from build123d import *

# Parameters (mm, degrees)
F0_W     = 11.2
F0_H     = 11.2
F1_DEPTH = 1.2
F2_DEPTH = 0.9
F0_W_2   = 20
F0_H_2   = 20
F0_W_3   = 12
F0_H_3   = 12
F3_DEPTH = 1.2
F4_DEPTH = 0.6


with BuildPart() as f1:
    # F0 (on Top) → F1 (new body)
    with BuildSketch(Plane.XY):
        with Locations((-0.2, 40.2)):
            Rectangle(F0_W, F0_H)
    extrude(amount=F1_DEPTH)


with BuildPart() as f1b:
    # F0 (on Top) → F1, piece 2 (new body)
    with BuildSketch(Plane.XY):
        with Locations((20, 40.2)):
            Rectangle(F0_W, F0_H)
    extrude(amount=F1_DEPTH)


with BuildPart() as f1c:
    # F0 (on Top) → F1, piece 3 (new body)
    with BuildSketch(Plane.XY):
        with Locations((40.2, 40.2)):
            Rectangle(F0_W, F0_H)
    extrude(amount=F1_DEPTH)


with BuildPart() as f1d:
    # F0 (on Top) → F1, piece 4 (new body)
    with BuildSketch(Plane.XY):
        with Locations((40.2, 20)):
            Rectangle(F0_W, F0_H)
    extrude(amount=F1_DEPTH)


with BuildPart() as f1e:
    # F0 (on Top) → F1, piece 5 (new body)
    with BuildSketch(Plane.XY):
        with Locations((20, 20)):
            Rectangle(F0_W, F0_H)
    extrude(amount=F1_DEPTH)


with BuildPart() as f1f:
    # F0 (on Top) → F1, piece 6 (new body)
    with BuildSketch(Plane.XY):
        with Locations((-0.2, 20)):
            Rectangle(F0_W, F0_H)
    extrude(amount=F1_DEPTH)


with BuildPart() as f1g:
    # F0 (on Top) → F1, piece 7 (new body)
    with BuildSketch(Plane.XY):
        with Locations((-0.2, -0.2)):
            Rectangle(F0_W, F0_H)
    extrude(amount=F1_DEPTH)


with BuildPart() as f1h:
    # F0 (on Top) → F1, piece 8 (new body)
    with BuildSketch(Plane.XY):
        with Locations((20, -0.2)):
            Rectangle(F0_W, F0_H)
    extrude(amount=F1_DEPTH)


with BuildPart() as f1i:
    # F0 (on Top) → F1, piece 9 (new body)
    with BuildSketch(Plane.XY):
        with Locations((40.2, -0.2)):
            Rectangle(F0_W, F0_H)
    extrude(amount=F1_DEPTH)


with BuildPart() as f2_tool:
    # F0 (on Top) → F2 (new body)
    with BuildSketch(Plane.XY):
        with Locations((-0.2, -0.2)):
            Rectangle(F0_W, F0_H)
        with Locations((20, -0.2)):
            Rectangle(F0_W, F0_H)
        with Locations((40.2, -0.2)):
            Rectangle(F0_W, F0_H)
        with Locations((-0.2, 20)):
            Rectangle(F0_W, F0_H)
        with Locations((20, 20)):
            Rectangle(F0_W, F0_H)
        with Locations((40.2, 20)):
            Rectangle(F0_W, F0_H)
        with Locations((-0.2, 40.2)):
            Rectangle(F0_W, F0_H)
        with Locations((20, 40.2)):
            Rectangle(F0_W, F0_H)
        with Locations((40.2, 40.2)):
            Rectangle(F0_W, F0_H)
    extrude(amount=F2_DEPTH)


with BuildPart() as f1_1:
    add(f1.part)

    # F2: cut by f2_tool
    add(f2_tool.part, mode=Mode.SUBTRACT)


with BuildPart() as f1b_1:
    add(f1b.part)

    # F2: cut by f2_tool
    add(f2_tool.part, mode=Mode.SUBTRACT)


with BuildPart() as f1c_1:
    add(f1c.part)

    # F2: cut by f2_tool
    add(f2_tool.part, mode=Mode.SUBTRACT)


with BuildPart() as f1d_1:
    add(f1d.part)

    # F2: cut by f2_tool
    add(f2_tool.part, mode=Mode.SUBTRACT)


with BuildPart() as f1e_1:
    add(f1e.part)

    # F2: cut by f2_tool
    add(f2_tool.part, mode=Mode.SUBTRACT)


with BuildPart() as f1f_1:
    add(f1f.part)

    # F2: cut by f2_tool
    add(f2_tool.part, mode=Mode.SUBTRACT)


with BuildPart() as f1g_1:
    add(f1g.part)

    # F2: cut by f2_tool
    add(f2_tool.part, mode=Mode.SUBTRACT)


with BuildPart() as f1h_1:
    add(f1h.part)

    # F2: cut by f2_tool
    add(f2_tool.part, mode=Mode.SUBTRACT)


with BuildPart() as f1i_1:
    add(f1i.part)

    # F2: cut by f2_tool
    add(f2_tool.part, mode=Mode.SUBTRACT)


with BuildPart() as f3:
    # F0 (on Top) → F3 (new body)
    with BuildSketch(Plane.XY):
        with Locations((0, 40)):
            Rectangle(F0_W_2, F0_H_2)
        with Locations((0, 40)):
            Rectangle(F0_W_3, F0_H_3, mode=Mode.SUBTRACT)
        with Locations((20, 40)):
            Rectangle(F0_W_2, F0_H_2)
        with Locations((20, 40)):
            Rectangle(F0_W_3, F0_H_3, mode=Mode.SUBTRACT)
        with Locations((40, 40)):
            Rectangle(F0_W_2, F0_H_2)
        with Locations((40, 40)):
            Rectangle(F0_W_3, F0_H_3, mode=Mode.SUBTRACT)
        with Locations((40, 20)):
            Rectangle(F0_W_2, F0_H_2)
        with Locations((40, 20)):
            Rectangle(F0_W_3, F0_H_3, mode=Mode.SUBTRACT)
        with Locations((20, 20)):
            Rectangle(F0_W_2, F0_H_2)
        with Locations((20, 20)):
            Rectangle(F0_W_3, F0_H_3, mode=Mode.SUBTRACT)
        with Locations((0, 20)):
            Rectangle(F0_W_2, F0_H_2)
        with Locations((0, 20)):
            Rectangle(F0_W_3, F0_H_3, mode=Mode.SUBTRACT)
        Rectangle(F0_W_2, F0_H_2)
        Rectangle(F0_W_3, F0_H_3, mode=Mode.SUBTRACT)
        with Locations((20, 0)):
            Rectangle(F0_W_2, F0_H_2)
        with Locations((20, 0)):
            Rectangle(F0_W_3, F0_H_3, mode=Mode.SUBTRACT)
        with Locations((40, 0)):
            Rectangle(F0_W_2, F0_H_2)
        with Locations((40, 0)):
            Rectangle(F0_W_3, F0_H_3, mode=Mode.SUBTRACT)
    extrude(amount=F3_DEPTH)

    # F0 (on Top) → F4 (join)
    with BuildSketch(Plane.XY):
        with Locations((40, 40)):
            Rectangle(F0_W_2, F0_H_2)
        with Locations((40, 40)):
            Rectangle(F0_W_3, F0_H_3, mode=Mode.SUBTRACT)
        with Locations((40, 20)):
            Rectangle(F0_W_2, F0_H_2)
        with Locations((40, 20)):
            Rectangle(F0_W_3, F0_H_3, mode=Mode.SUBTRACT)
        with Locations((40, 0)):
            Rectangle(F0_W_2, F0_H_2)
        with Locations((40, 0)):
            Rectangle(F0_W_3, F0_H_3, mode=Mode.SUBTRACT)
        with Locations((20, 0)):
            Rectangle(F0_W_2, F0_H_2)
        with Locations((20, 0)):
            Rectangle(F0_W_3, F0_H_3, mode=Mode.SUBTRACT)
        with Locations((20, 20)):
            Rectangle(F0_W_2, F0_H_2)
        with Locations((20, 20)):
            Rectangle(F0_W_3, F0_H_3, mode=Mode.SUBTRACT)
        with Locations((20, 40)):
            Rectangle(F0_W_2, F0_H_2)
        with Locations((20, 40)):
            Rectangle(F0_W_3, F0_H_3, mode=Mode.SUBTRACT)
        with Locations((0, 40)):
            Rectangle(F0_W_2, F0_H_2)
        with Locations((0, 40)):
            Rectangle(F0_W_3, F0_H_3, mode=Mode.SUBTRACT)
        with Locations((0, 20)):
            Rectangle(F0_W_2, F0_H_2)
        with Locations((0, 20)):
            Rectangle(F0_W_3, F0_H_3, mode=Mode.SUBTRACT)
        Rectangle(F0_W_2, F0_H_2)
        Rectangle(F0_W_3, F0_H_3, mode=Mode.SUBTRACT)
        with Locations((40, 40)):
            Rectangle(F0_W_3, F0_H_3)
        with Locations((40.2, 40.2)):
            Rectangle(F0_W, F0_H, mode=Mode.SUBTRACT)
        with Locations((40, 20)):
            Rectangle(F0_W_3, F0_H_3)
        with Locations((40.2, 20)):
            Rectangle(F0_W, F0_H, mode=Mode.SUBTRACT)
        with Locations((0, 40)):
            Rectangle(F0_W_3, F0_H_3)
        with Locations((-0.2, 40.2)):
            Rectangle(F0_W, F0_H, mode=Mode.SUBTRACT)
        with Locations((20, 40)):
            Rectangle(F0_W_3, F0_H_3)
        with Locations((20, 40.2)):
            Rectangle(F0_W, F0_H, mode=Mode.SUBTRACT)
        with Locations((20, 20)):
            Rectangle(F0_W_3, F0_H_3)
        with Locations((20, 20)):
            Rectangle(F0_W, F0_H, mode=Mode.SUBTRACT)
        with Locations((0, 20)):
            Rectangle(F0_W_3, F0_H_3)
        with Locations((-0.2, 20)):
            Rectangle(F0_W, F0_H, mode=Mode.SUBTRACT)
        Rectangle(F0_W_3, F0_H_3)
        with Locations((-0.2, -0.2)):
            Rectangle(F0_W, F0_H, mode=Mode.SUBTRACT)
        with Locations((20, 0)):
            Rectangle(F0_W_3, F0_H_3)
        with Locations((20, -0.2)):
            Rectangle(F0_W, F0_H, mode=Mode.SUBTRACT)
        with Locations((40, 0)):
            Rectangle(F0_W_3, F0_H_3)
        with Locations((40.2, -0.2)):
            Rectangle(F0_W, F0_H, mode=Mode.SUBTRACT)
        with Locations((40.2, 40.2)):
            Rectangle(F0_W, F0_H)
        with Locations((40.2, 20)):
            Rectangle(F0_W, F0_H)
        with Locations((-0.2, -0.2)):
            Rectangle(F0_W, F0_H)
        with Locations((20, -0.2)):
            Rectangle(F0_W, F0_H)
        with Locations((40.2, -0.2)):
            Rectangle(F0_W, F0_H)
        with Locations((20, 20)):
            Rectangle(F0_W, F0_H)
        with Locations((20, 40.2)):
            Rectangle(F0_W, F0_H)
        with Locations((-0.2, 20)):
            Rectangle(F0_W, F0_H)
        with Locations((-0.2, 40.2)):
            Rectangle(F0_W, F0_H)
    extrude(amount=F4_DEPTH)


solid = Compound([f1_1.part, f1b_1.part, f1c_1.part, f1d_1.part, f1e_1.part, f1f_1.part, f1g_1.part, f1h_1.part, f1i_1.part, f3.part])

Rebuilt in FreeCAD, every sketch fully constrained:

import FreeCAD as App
import Part
import Sketcher

doc = App.newDocument("Part")
params = doc.addObject("Spreadsheet::Sheet", "Params")
for row, (alias, value) in enumerate([
    ("sketch1_width", "11.2 mm"),
    ("pad1_length", "1.2 mm"),
    ("sketch2_width", "11.2 mm"),
    ("pad2_length", "1.2 mm"),
    ("sketch3_width", "11.2 mm"),
    ("pad3_length", "1.2 mm"),
    ("sketch4_width", "11.2 mm"),
    ("pad4_length", "1.2 mm"),
    ("sketch5_width", "11.2 mm"),
    ("pad5_length", "1.2 mm"),
    ("sketch6_width", "11.2 mm"),
    ("pad6_length", "1.2 mm"),
    ("sketch7_width", "11.2 mm"),
    ("pad7_length", "1.2 mm"),
    ("sketch8_width", "11.2 mm"),
    ("pad8_length", "1.2 mm"),
    ("sketch9_width", "11.2 mm"),
    ("pad9_length", "1.2 mm"),
    ("sketch10_width", "11.2 mm"),
    ("pad10_length", "0.9 mm"),
    ("sketch11_width", "60 mm"),
    ("sketch11_width2", "12 mm"),
    ("pad11_length", "1.2 mm"),
    ("sketch12_width", "60 mm"),
    ("pad12_length", "0.6 mm"),
], start=1):
    params.set(f"A{row}", alias)
    params.set(f"B{row}", "=" + value)
    params.setAlias(f"B{row}", alias)

body = doc.addObject("PartDesign::Body", "Body")

# Sketch on XY plane
sketch1 = body.newObject("Sketcher::SketchObject", "Sketch")
sketch1.AttachmentSupport = (doc.getObject("XY_Plane"), [""])
sketch1.MapMode = "FlatFace"
sketch1.addGeometry(Part.LineSegment(App.Vector(-6, 46, 0), App.Vector(-6, 35, 0)), False)
sketch1.addGeometry(Part.LineSegment(App.Vector(-6, 35, 0), App.Vector(5, 35, 0)), False)
sketch1.addGeometry(Part.LineSegment(App.Vector(5, 35, 0), App.Vector(5, 46, 0)), False)
sketch1.addGeometry(Part.LineSegment(App.Vector(5, 46, 0), App.Vector(-6, 46, 0)), False)
sketch1.addConstraint(Sketcher.Constraint("Coincident", 0, 2, 1, 1))
sketch1.addConstraint(Sketcher.Constraint("Coincident", 1, 2, 2, 1))
sketch1.addConstraint(Sketcher.Constraint("Coincident", 2, 2, 3, 1))
sketch1.addConstraint(Sketcher.Constraint("Coincident", 3, 2, 0, 1))
sketch1.addConstraint(Sketcher.Constraint("Vertical", 0))
sketch1.addConstraint(Sketcher.Constraint("Horizontal", 1))
sketch1.addConstraint(Sketcher.Constraint("Vertical", 2))
sketch1.addConstraint(Sketcher.Constraint("Horizontal", 3))
sketch1.addConstraint(Sketcher.Constraint("Equal", 3, 0))
sketch1.addConstraint(Sketcher.Constraint("DistanceX", 1, 1, 1, 2, 11.2))
sketch1.addConstraint(Sketcher.Constraint("DistanceX", 0, 2, -1, 1, 5.8))
sketch1.addConstraint(Sketcher.Constraint("DistanceY", -1, 1, 0, 2, 34.6))
sketch1.setExpression("Constraints[9]", "Params.sketch1_width")
pad1 = body.newObject("PartDesign::Pad", "Pad")
pad1.Profile = sketch1
pad1.setExpression("Length", "Params.pad1_length")
body2 = doc.addObject("PartDesign::Body", "Body001")

# Sketch on XY plane
sketch2 = body2.newObject("Sketcher::SketchObject", "Sketch001")
sketch2.AttachmentSupport = (doc.getObject("XY_Plane001"), [""])
sketch2.MapMode = "FlatFace"
sketch2.addGeometry(Part.LineSegment(App.Vector(14, 46, 0), App.Vector(14, 35, 0)), False)
sketch2.addGeometry(Part.LineSegment(App.Vector(14, 35, 0), App.Vector(26, 35, 0)), False)
sketch2.addGeometry(Part.LineSegment(App.Vector(26, 35, 0), App.Vector(26, 46, 0)), False)
sketch2.addGeometry(Part.LineSegment(App.Vector(26, 46, 0), App.Vector(14, 46, 0)), False)
sketch2.addConstraint(Sketcher.Constraint("Coincident", 0, 2, 1, 1))
sketch2.addConstraint(Sketcher.Constraint("Coincident", 1, 2, 2, 1))
sketch2.addConstraint(Sketcher.Constraint("Coincident", 2, 2, 3, 1))
sketch2.addConstraint(Sketcher.Constraint("Coincident", 3, 2, 0, 1))
sketch2.addConstraint(Sketcher.Constraint("Vertical", 0))
sketch2.addConstraint(Sketcher.Constraint("Horizontal", 1))
sketch2.addConstraint(Sketcher.Constraint("Vertical", 2))
sketch2.addConstraint(Sketcher.Constraint("Horizontal", 3))
sketch2.addConstraint(Sketcher.Constraint("Equal", 3, 0))
sketch2.addConstraint(Sketcher.Constraint("DistanceX", 1, 1, 1, 2, 11.2))
sketch2.addConstraint(Sketcher.Constraint("DistanceX", -1, 1, 0, 2, 14.4))
sketch2.addConstraint(Sketcher.Constraint("DistanceY", -1, 1, 0, 2, 34.6))
sketch2.setExpression("Constraints[9]", "Params.sketch2_width")
pad2 = body2.newObject("PartDesign::Pad", "Pad001")
pad2.Profile = sketch2
pad2.setExpression("Length", "Params.pad2_length")
body3 = doc.addObject("PartDesign::Body", "Body002")

# Sketch on XY plane
sketch3 = body3.newObject("Sketcher::SketchObject", "Sketch002")
sketch3.AttachmentSupport = (doc.getObject("XY_Plane002"), [""])
sketch3.MapMode = "FlatFace"
sketch3.addGeometry(Part.LineSegment(App.Vector(35, 46, 0), App.Vector(35, 35, 0)), False)
sketch3.addGeometry(Part.LineSegment(App.Vector(35, 35, 0), App.Vector(46, 35, 0)), False)
sketch3.addGeometry(Part.LineSegment(App.Vector(46, 35, 0), App.Vector(46, 46, 0)), False)
sketch3.addGeometry(Part.LineSegment(App.Vector(46, 46, 0), App.Vector(35, 46, 0)), False)
sketch3.addConstraint(Sketcher.Constraint("Coincident", 0, 2, 1, 1))
sketch3.addConstraint(Sketcher.Constraint("Coincident", 1, 2, 2, 1))
sketch3.addConstraint(Sketcher.Constraint("Coincident", 2, 2, 3, 1))
sketch3.addConstraint(Sketcher.Constraint("Coincident", 3, 2, 0, 1))
sketch3.addConstraint(Sketcher.Constraint("Vertical", 0))
sketch3.addConstraint(Sketcher.Constraint("Horizontal", 1))
sketch3.addConstraint(Sketcher.Constraint("Vertical", 2))
sketch3.addConstraint(Sketcher.Constraint("Horizontal", 3))
sketch3.addConstraint(Sketcher.Constraint("Equal", 3, 0))
sketch3.addConstraint(Sketcher.Constraint("DistanceX", 1, 1, 1, 2, 11.2))
sketch3.addConstraint(Sketcher.Constraint("DistanceX", -1, 1, 0, 2, 34.6))
sketch3.addConstraint(Sketcher.Constraint("DistanceY", -1, 1, 0, 2, 34.6))
sketch3.setExpression("Constraints[9]", "Params.sketch3_width")
pad3 = body3.newObject("PartDesign::Pad", "Pad002")
pad3.Profile = sketch3
pad3.setExpression("Length", "Params.pad3_length")
body4 = doc.addObject("PartDesign::Body", "Body003")

# Sketch on XY plane
sketch4 = body4.newObject("Sketcher::SketchObject", "Sketch003")
sketch4.AttachmentSupport = (doc.getObject("XY_Plane003"), [""])
sketch4.MapMode = "FlatFace"
sketch4.addGeometry(Part.LineSegment(App.Vector(35, 26, 0), App.Vector(35, 14, 0)), False)
sketch4.addGeometry(Part.LineSegment(App.Vector(35, 14, 0), App.Vector(46, 14, 0)), False)
sketch4.addGeometry(Part.LineSegment(App.Vector(46, 14, 0), App.Vector(46, 26, 0)), False)
sketch4.addGeometry(Part.LineSegment(App.Vector(46, 26, 0), App.Vector(35, 26, 0)), False)
sketch4.addConstraint(Sketcher.Constraint("Coincident", 0, 2, 1, 1))
sketch4.addConstraint(Sketcher.Constraint("Coincident", 1, 2, 2, 1))
sketch4.addConstraint(Sketcher.Constraint("Coincident", 2, 2, 3, 1))
sketch4.addConstraint(Sketcher.Constraint("Coincident", 3, 2, 0, 1))
sketch4.addConstraint(Sketcher.Constraint("Vertical", 0))
sketch4.addConstraint(Sketcher.Constraint("Horizontal", 1))
sketch4.addConstraint(Sketcher.Constraint("Vertical", 2))
sketch4.addConstraint(Sketcher.Constraint("Horizontal", 3))
sketch4.addConstraint(Sketcher.Constraint("Equal", 3, 0))
sketch4.addConstraint(Sketcher.Constraint("DistanceX", 1, 1, 1, 2, 11.2))
sketch4.addConstraint(Sketcher.Constraint("DistanceX", -1, 1, 0, 2, 34.6))
sketch4.addConstraint(Sketcher.Constraint("DistanceY", -1, 1, 0, 2, 14.4))
sketch4.setExpression("Constraints[9]", "Params.sketch4_width")
pad4 = body4.newObject("PartDesign::Pad", "Pad003")
pad4.Profile = sketch4
pad4.setExpression("Length", "Params.pad4_length")
body5 = doc.addObject("PartDesign::Body", "Body004")

# Sketch on XY plane
sketch5 = body5.newObject("Sketcher::SketchObject", "Sketch004")
sketch5.AttachmentSupport = (doc.getObject("XY_Plane004"), [""])
sketch5.MapMode = "FlatFace"
sketch5.addGeometry(Part.LineSegment(App.Vector(14, 26, 0), App.Vector(14, 14, 0)), False)
sketch5.addGeometry(Part.LineSegment(App.Vector(14, 14, 0), App.Vector(26, 14, 0)), False)
sketch5.addGeometry(Part.LineSegment(App.Vector(26, 14, 0), App.Vector(26, 26, 0)), False)
sketch5.addGeometry(Part.LineSegment(App.Vector(26, 26, 0), App.Vector(14, 26, 0)), False)
sketch5.addConstraint(Sketcher.Constraint("Coincident", 0, 2, 1, 1))
sketch5.addConstraint(Sketcher.Constraint("Coincident", 1, 2, 2, 1))
sketch5.addConstraint(Sketcher.Constraint("Coincident", 2, 2, 3, 1))
sketch5.addConstraint(Sketcher.Constraint("Coincident", 3, 2, 0, 1))
sketch5.addConstraint(Sketcher.Constraint("Vertical", 0))
sketch5.addConstraint(Sketcher.Constraint("Horizontal", 1))
sketch5.addConstraint(Sketcher.Constraint("Vertical", 2))
sketch5.addConstraint(Sketcher.Constraint("Horizontal", 3))
sketch5.addConstraint(Sketcher.Constraint("Equal", 3, 0))
sketch5.addConstraint(Sketcher.Constraint("DistanceX", 1, 1, 1, 2, 11.2))
sketch5.addConstraint(Sketcher.Constraint("DistanceX", -1, 1, 0, 2, 14.4))
sketch5.addConstraint(Sketcher.Constraint("DistanceY", -1, 1, 0, 2, 14.4))
sketch5.setExpression("Constraints[9]", "Params.sketch5_width")
pad5 = body5.newObject("PartDesign::Pad", "Pad004")
pad5.Profile = sketch5
pad5.setExpression("Length", "Params.pad5_length")
body6 = doc.addObject("PartDesign::Body", "Body005")

# Sketch on XY plane
sketch6 = body6.newObject("Sketcher::SketchObject", "Sketch005")
sketch6.AttachmentSupport = (doc.getObject("XY_Plane005"), [""])
sketch6.MapMode = "FlatFace"
sketch6.addGeometry(Part.LineSegment(App.Vector(-6, 26, 0), App.Vector(-6, 14, 0)), False)
sketch6.addGeometry(Part.LineSegment(App.Vector(-6, 14, 0), App.Vector(5, 14, 0)), False)
sketch6.addGeometry(Part.LineSegment(App.Vector(5, 14, 0), App.Vector(5, 26, 0)), False)
sketch6.addGeometry(Part.LineSegment(App.Vector(5, 26, 0), App.Vector(-6, 26, 0)), False)
sketch6.addConstraint(Sketcher.Constraint("Coincident", 0, 2, 1, 1))
sketch6.addConstraint(Sketcher.Constraint("Coincident", 1, 2, 2, 1))
sketch6.addConstraint(Sketcher.Constraint("Coincident", 2, 2, 3, 1))
sketch6.addConstraint(Sketcher.Constraint("Coincident", 3, 2, 0, 1))
sketch6.addConstraint(Sketcher.Constraint("Vertical", 0))
sketch6.addConstraint(Sketcher.Constraint("Horizontal", 1))
sketch6.addConstraint(Sketcher.Constraint("Vertical", 2))
sketch6.addConstraint(Sketcher.Constraint("Horizontal", 3))
sketch6.addConstraint(Sketcher.Constraint("Equal", 3, 0))
sketch6.addConstraint(Sketcher.Constraint("DistanceX", 1, 1, 1, 2, 11.2))
sketch6.addConstraint(Sketcher.Constraint("DistanceX", 0, 2, -1, 1, 5.8))
sketch6.addConstraint(Sketcher.Constraint("DistanceY", -1, 1, 0, 2, 14.4))
sketch6.setExpression("Constraints[9]", "Params.sketch6_width")
pad6 = body6.newObject("PartDesign::Pad", "Pad005")
pad6.Profile = sketch6
pad6.setExpression("Length", "Params.pad6_length")
body7 = doc.addObject("PartDesign::Body", "Body006")

# Sketch on XY plane
sketch7 = body7.newObject("Sketcher::SketchObject", "Sketch006")
sketch7.AttachmentSupport = (doc.getObject("XY_Plane006"), [""])
sketch7.MapMode = "FlatFace"
sketch7.addGeometry(Part.LineSegment(App.Vector(-6, 5, 0), App.Vector(-6, -6, 0)), False)
sketch7.addGeometry(Part.LineSegment(App.Vector(-6, -6, 0), App.Vector(5, -6, 0)), False)
sketch7.addGeometry(Part.LineSegment(App.Vector(5, -6, 0), App.Vector(5, 5, 0)), False)
sketch7.addGeometry(Part.LineSegment(App.Vector(5, 5, 0), App.Vector(-6, 5, 0)), False)
sketch7.addConstraint(Sketcher.Constraint("Coincident", 0, 2, 1, 1))
sketch7.addConstraint(Sketcher.Constraint("Coincident", 1, 2, 2, 1))
sketch7.addConstraint(Sketcher.Constraint("Coincident", 2, 2, 3, 1))
sketch7.addConstraint(Sketcher.Constraint("Coincident", 3, 2, 0, 1))
sketch7.addConstraint(Sketcher.Constraint("Vertical", 0))
sketch7.addConstraint(Sketcher.Constraint("Horizontal", 1))
sketch7.addConstraint(Sketcher.Constraint("Vertical", 2))
sketch7.addConstraint(Sketcher.Constraint("Horizontal", 3))
sketch7.addConstraint(Sketcher.Constraint("Equal", 3, 0))
sketch7.addConstraint(Sketcher.Constraint("DistanceX", 1, 1, 1, 2, 11.2))
sketch7.addConstraint(Sketcher.Constraint("DistanceX", 0, 2, -1, 1, 5.8))
sketch7.addConstraint(Sketcher.Constraint("DistanceY", 0, 2, -1, 1, 5.8))
sketch7.setExpression("Constraints[9]", "Params.sketch7_width")
pad7 = body7.newObject("PartDesign::Pad", "Pad006")
pad7.Profile = sketch7
pad7.setExpression("Length", "Params.pad7_length")
body8 = doc.addObject("PartDesign::Body", "Body007")

# Sketch on XY plane
sketch8 = body8.newObject("Sketcher::SketchObject", "Sketch007")
sketch8.AttachmentSupport = (doc.getObject("XY_Plane007"), [""])
sketch8.MapMode = "FlatFace"
sketch8.addGeometry(Part.LineSegment(App.Vector(14, 5, 0), App.Vector(14, -6, 0)), False)
sketch8.addGeometry(Part.LineSegment(App.Vector(14, -6, 0), App.Vector(26, -6, 0)), False)
sketch8.addGeometry(Part.LineSegment(App.Vector(26, -6, 0), App.Vector(26, 5, 0)), False)
sketch8.addGeometry(Part.LineSegment(App.Vector(26, 5, 0), App.Vector(14, 5, 0)), False)
sketch8.addConstraint(Sketcher.Constraint("Coincident", 0, 2, 1, 1))
sketch8.addConstraint(Sketcher.Constraint("Coincident", 1, 2, 2, 1))
sketch8.addConstraint(Sketcher.Constraint("Coincident", 2, 2, 3, 1))
sketch8.addConstraint(Sketcher.Constraint("Coincident", 3, 2, 0, 1))
sketch8.addConstraint(Sketcher.Constraint("Vertical", 0))
sketch8.addConstraint(Sketcher.Constraint("Horizontal", 1))
sketch8.addConstraint(Sketcher.Constraint("Vertical", 2))
sketch8.addConstraint(Sketcher.Constraint("Horizontal", 3))
sketch8.addConstraint(Sketcher.Constraint("Equal", 3, 0))
sketch8.addConstraint(Sketcher.Constraint("DistanceX", 1, 1, 1, 2, 11.2))
sketch8.addConstraint(Sketcher.Constraint("DistanceX", -1, 1, 0, 2, 14.4))
sketch8.addConstraint(Sketcher.Constraint("DistanceY", 0, 2, -1, 1, 5.8))
sketch8.setExpression("Constraints[9]", "Params.sketch8_width")
pad8 = body8.newObject("PartDesign::Pad", "Pad007")
pad8.Profile = sketch8
pad8.setExpression("Length", "Params.pad8_length")
body9 = doc.addObject("PartDesign::Body", "Body008")

# Sketch on XY plane
sketch9 = body9.newObject("Sketcher::SketchObject", "Sketch008")
sketch9.AttachmentSupport = (doc.getObject("XY_Plane008"), [""])
sketch9.MapMode = "FlatFace"
sketch9.addGeometry(Part.LineSegment(App.Vector(35, 5, 0), App.Vector(35, -6, 0)), False)
sketch9.addGeometry(Part.LineSegment(App.Vector(35, -6, 0), App.Vector(46, -6, 0)), False)
sketch9.addGeometry(Part.LineSegment(App.Vector(46, -6, 0), App.Vector(46, 5, 0)), False)
sketch9.addGeometry(Part.LineSegment(App.Vector(46, 5, 0), App.Vector(35, 5, 0)), False)
sketch9.addConstraint(Sketcher.Constraint("Coincident", 0, 2, 1, 1))
sketch9.addConstraint(Sketcher.Constraint("Coincident", 1, 2, 2, 1))
sketch9.addConstraint(Sketcher.Constraint("Coincident", 2, 2, 3, 1))
sketch9.addConstraint(Sketcher.Constraint("Coincident", 3, 2, 0, 1))
sketch9.addConstraint(Sketcher.Constraint("Vertical", 0))
sketch9.addConstraint(Sketcher.Constraint("Horizontal", 1))
sketch9.addConstraint(Sketcher.Constraint("Vertical", 2))
sketch9.addConstraint(Sketcher.Constraint("Horizontal", 3))
sketch9.addConstraint(Sketcher.Constraint("Equal", 3, 0))
sketch9.addConstraint(Sketcher.Constraint("DistanceX", 1, 1, 1, 2, 11.2))
sketch9.addConstraint(Sketcher.Constraint("DistanceX", -1, 1, 0, 2, 34.6))
sketch9.addConstraint(Sketcher.Constraint("DistanceY", 0, 2, -1, 1, 5.8))
sketch9.setExpression("Constraints[9]", "Params.sketch9_width")
pad9 = body9.newObject("PartDesign::Pad", "Pad008")
pad9.Profile = sketch9
pad9.setExpression("Length", "Params.pad9_length")
body10 = doc.addObject("PartDesign::Body", "Body009")
body10.AllowCompound = True

# Sketch on XY plane
sketch10 = body10.newObject("Sketcher::SketchObject", "Sketch009")
sketch10.AttachmentSupport = (doc.getObject("XY_Plane009"), [""])
sketch10.MapMode = "FlatFace"
sketch10.addGeometry(Part.LineSegment(App.Vector(-6, 5, 0), App.Vector(-6, -6, 0)), False)
sketch10.addGeometry(Part.LineSegment(App.Vector(-6, -6, 0), App.Vector(5, -6, 0)), False)
sketch10.addGeometry(Part.LineSegment(App.Vector(5, -6, 0), App.Vector(5, 5, 0)), False)
sketch10.addGeometry(Part.LineSegment(App.Vector(5, 5, 0), App.Vector(-6, 5, 0)), False)
sketch10.addGeometry(Part.LineSegment(App.Vector(14, 5, 0), App.Vector(14, -6, 0)), False)
sketch10.addGeometry(Part.LineSegment(App.Vector(14, -6, 0), App.Vector(26, -6, 0)), False)
sketch10.addGeometry(Part.LineSegment(App.Vector(26, -6, 0), App.Vector(26, 5, 0)), False)
sketch10.addGeometry(Part.LineSegment(App.Vector(26, 5, 0), App.Vector(14, 5, 0)), False)
sketch10.addGeometry(Part.LineSegment(App.Vector(35, 5, 0), App.Vector(35, -6, 0)), False)
sketch10.addGeometry(Part.LineSegment(App.Vector(35, -6, 0), App.Vector(46, -6, 0)), False)
sketch10.addGeometry(Part.LineSegment(App.Vector(46, -6, 0), App.Vector(46, 5, 0)), False)
sketch10.addGeometry(Part.LineSegment(App.Vector(46, 5, 0), App.Vector(35, 5, 0)), False)
sketch10.addGeometry(Part.LineSegment(App.Vector(-6, 26, 0), App.Vector(-6, 14, 0)), False)
sketch10.addGeometry(Part.LineSegment(App.Vector(-6, 14, 0), App.Vector(5, 14, 0)), False)
sketch10.addGeometry(Part.LineSegment(App.Vector(5, 14, 0), App.Vector(5, 26, 0)), False)
sketch10.addGeometry(Part.LineSegment(App.Vector(5, 26, 0), App.Vector(-6, 26, 0)), False)
sketch10.addGeometry(Part.LineSegment(App.Vector(14, 26, 0), App.Vector(14, 14, 0)), False)
sketch10.addGeometry(Part.LineSegment(App.Vector(14, 14, 0), App.Vector(26, 14, 0)), False)
sketch10.addGeometry(Part.LineSegment(App.Vector(26, 14, 0), App.Vector(26, 26, 0)), False)
sketch10.addGeometry(Part.LineSegment(App.Vector(26, 26, 0), App.Vector(14, 26, 0)), False)
sketch10.addGeometry(Part.LineSegment(App.Vector(35, 26, 0), App.Vector(35, 14, 0)), False)
sketch10.addGeometry(Part.LineSegment(App.Vector(35, 14, 0), App.Vector(46, 14, 0)), False)
sketch10.addGeometry(Part.LineSegment(App.Vector(46, 14, 0), App.Vector(46, 26, 0)), False)
sketch10.addGeometry(Part.LineSegment(App.Vector(46, 26, 0), App.Vector(35, 26, 0)), False)
sketch10.addGeometry(Part.LineSegment(App.Vector(-6, 46, 0), App.Vector(-6, 35, 0)), False)
sketch10.addGeometry(Part.LineSegment(App.Vector(-6, 35, 0), App.Vector(5, 35, 0)), False)
sketch10.addGeometry(Part.LineSegment(App.Vector(5, 35, 0), App.Vector(5, 46, 0)), False)
sketch10.addGeometry(Part.LineSegment(App.Vector(5, 46, 0), App.Vector(-6, 46, 0)), False)
sketch10.addGeometry(Part.LineSegment(App.Vector(14, 46, 0), App.Vector(14, 35, 0)), False)
sketch10.addGeometry(Part.LineSegment(App.Vector(14, 35, 0), App.Vector(26, 35, 0)), False)
sketch10.addGeometry(Part.LineSegment(App.Vector(26, 35, 0), App.Vector(26, 46, 0)), False)
sketch10.addGeometry(Part.LineSegment(App.Vector(26, 46, 0), App.Vector(14, 46, 0)), False)
sketch10.addGeometry(Part.LineSegment(App.Vector(35, 46, 0), App.Vector(35, 35, 0)), False)
sketch10.addGeometry(Part.LineSegment(App.Vector(35, 35, 0), App.Vector(46, 35, 0)), False)
sketch10.addGeometry(Part.LineSegment(App.Vector(46, 35, 0), App.Vector(46, 46, 0)), False)
sketch10.addGeometry(Part.LineSegment(App.Vector(46, 46, 0), App.Vector(35, 46, 0)), False)
sketch10.addConstraint(Sketcher.Constraint("Coincident", 0, 2, 1, 1))
sketch10.addConstraint(Sketcher.Constraint("Coincident", 1, 2, 2, 1))
sketch10.addConstraint(Sketcher.Constraint("Coincident", 2, 2, 3, 1))
sketch10.addConstraint(Sketcher.Constraint("Coincident", 3, 2, 0, 1))
sketch10.addConstraint(Sketcher.Constraint("Coincident", 4, 2, 5, 1))
sketch10.addConstraint(Sketcher.Constraint("Coincident", 5, 2, 6, 1))
sketch10.addConstraint(Sketcher.Constraint("Coincident", 6, 2, 7, 1))
sketch10.addConstraint(Sketcher.Constraint("Coincident", 7, 2, 4, 1))
sketch10.addConstraint(Sketcher.Constraint("Coincident", 8, 2, 9, 1))
sketch10.addConstraint(Sketcher.Constraint("Coincident", 9, 2, 10, 1))
sketch10.addConstraint(Sketcher.Constraint("Coincident", 10, 2, 11, 1))
sketch10.addConstraint(Sketcher.Constraint("Coincident", 11, 2, 8, 1))
sketch10.addConstraint(Sketcher.Constraint("Coincident", 12, 2, 13, 1))
sketch10.addConstraint(Sketcher.Constraint("Coincident", 13, 2, 14, 1))
sketch10.addConstraint(Sketcher.Constraint("Coincident", 14, 2, 15, 1))
sketch10.addConstraint(Sketcher.Constraint("Coincident", 15, 2, 12, 1))
sketch10.addConstraint(Sketcher.Constraint("Coincident", 16, 2, 17, 1))
sketch10.addConstraint(Sketcher.Constraint("Coincident", 17, 2, 18, 1))
sketch10.addConstraint(Sketcher.Constraint("Coincident", 18, 2, 19, 1))
sketch10.addConstraint(Sketcher.Constraint("Coincident", 19, 2, 16, 1))
sketch10.addConstraint(Sketcher.Constraint("Coincident", 20, 2, 21, 1))
sketch10.addConstraint(Sketcher.Constraint("Coincident", 21, 2, 22, 1))
sketch10.addConstraint(Sketcher.Constraint("Coincident", 22, 2, 23, 1))
sketch10.addConstraint(Sketcher.Constraint("Coincident", 23, 2, 20, 1))
sketch10.addConstraint(Sketcher.Constraint("Coincident", 24, 2, 25, 1))
sketch10.addConstraint(Sketcher.Constraint("Coincident", 25, 2, 26, 1))
sketch10.addConstraint(Sketcher.Constraint("Coincident", 26, 2, 27, 1))
sketch10.addConstraint(Sketcher.Constraint("Coincident", 27, 2, 24, 1))
sketch10.addConstraint(Sketcher.Constraint("Coincident", 28, 2, 29, 1))
sketch10.addConstraint(Sketcher.Constraint("Coincident", 29, 2, 30, 1))
sketch10.addConstraint(Sketcher.Constraint("Coincident", 30, 2, 31, 1))
sketch10.addConstraint(Sketcher.Constraint("Coincident", 31, 2, 28, 1))
sketch10.addConstraint(Sketcher.Constraint("Coincident", 32, 2, 33, 1))
sketch10.addConstraint(Sketcher.Constraint("Coincident", 33, 2, 34, 1))
sketch10.addConstraint(Sketcher.Constraint("Coincident", 34, 2, 35, 1))
sketch10.addConstraint(Sketcher.Constraint("Coincident", 35, 2, 32, 1))
sketch10.addConstraint(Sketcher.Constraint("Vertical", 0))
sketch10.addConstraint(Sketcher.Constraint("Horizontal", 1))
sketch10.addConstraint(Sketcher.Constraint("Vertical", 2))
sketch10.addConstraint(Sketcher.Constraint("Horizontal", 3))
sketch10.addConstraint(Sketcher.Constraint("Vertical", 4))
sketch10.addConstraint(Sketcher.Constraint("Horizontal", 5))
sketch10.addConstraint(Sketcher.Constraint("Vertical", 6))
sketch10.addConstraint(Sketcher.Constraint("Horizontal", 7))
sketch10.addConstraint(Sketcher.Constraint("Vertical", 8))
sketch10.addConstraint(Sketcher.Constraint("Horizontal", 9))
sketch10.addConstraint(Sketcher.Constraint("Vertical", 10))
sketch10.addConstraint(Sketcher.Constraint("Horizontal", 11))
sketch10.addConstraint(Sketcher.Constraint("Vertical", 12))
sketch10.addConstraint(Sketcher.Constraint("Horizontal", 13))
sketch10.addConstraint(Sketcher.Constraint("Vertical", 14))
sketch10.addConstraint(Sketcher.Constraint("Horizontal", 15))
sketch10.addConstraint(Sketcher.Constraint("Vertical", 16))
sketch10.addConstraint(Sketcher.Constraint("Horizontal", 17))
sketch10.addConstraint(Sketcher.Constraint("Vertical", 18))
sketch10.addConstraint(Sketcher.Constraint("Horizontal", 19))
sketch10.addConstraint(Sketcher.Constraint("Vertical", 20))
sketch10.addConstraint(Sketcher.Constraint("Horizontal", 21))
sketch10.addConstraint(Sketcher.Constraint("Vertical", 22))
sketch10.addConstraint(Sketcher.Constraint("Horizontal", 23))
sketch10.addConstraint(Sketcher.Constraint("Vertical", 24))
sketch10.addConstraint(Sketcher.Constraint("Horizontal", 25))
sketch10.addConstraint(Sketcher.Constraint("Vertical", 26))
sketch10.addConstraint(Sketcher.Constraint("Horizontal", 27))
sketch10.addConstraint(Sketcher.Constraint("Vertical", 28))
sketch10.addConstraint(Sketcher.Constraint("Horizontal", 29))
sketch10.addConstraint(Sketcher.Constraint("Vertical", 30))
sketch10.addConstraint(Sketcher.Constraint("Horizontal", 31))
sketch10.addConstraint(Sketcher.Constraint("Vertical", 32))
sketch10.addConstraint(Sketcher.Constraint("Horizontal", 33))
sketch10.addConstraint(Sketcher.Constraint("Vertical", 34))
sketch10.addConstraint(Sketcher.Constraint("Horizontal", 35))
sketch10.addConstraint(Sketcher.Constraint("Horizontal", 1, 2, 4, 2))
sketch10.addConstraint(Sketcher.Constraint("Horizontal", 3, 2, 6, 2))
sketch10.addConstraint(Sketcher.Constraint("Horizontal", 5, 2, 8, 2))
sketch10.addConstraint(Sketcher.Constraint("Horizontal", 7, 2, 10, 2))
sketch10.addConstraint(Sketcher.Constraint("Horizontal", 13, 2, 16, 2))
sketch10.addConstraint(Sketcher.Constraint("Horizontal", 15, 2, 18, 2))
sketch10.addConstraint(Sketcher.Constraint("Horizontal", 17, 2, 20, 2))
sketch10.addConstraint(Sketcher.Constraint("Horizontal", 19, 2, 22, 2))
sketch10.addConstraint(Sketcher.Constraint("Horizontal", 25, 2, 28, 2))
sketch10.addConstraint(Sketcher.Constraint("Horizontal", 27, 2, 30, 2))
sketch10.addConstraint(Sketcher.Constraint("Horizontal", 29, 2, 32, 2))
sketch10.addConstraint(Sketcher.Constraint("Horizontal", 31, 2, 34, 2))
sketch10.addConstraint(Sketcher.Constraint("Vertical", 3, 2, 12, 2))
sketch10.addConstraint(Sketcher.Constraint("Vertical", 2, 2, 13, 2))
sketch10.addConstraint(Sketcher.Constraint("Vertical", 7, 2, 16, 2))
sketch10.addConstraint(Sketcher.Constraint("Vertical", 6, 2, 17, 2))
sketch10.addConstraint(Sketcher.Constraint("Vertical", 11, 2, 20, 2))
sketch10.addConstraint(Sketcher.Constraint("Vertical", 10, 2, 21, 2))
sketch10.addConstraint(Sketcher.Constraint("Vertical", 15, 2, 24, 2))
sketch10.addConstraint(Sketcher.Constraint("Vertical", 14, 2, 25, 2))
sketch10.addConstraint(Sketcher.Constraint("Vertical", 19, 2, 28, 2))
sketch10.addConstraint(Sketcher.Constraint("Vertical", 18, 2, 29, 2))
sketch10.addConstraint(Sketcher.Constraint("Vertical", 23, 2, 32, 2))
sketch10.addConstraint(Sketcher.Constraint("Vertical", 22, 2, 33, 2))
sketch10.addConstraint(Sketcher.Constraint("Equal", 3, 5))
sketch10.addConstraint(Sketcher.Constraint("Equal", 7, 9))
sketch10.addConstraint(Sketcher.Constraint("Equal", 35, 0))
sketch10.addConstraint(Sketcher.Constraint("Equal", 10, 12))
sketch10.addConstraint(Sketcher.Constraint("Equal", 22, 24))
sketch10.addConstraint(Sketcher.Constraint("DistanceX", 1, 1, 1, 2, 11.2))
sketch10.addConstraint(Sketcher.Constraint("DistanceX", 1, 2, 4, 2, 9.0))
sketch10.addConstraint(Sketcher.Constraint("DistanceX", 5, 2, 8, 2, 9.0))
sketch10.addConstraint(Sketcher.Constraint("DistanceY", 3, 2, 12, 2, 9.0))
sketch10.addConstraint(Sketcher.Constraint("DistanceY", 15, 2, 24, 2, 9.0))
sketch10.addConstraint(Sketcher.Constraint("DistanceX", 0, 2, -1, 1, 5.8))
sketch10.addConstraint(Sketcher.Constraint("DistanceY", 0, 2, -1, 1, 5.8))
sketch10.setExpression("Constraints[101]", "Params.sketch10_width")
pad10 = body10.newObject("PartDesign::Pad", "Pad009")
pad10.Profile = sketch10
pad10.setExpression("Length", "Params.pad10_length")
doc.recompute()

body11 = doc.addObject("PartDesign::Body", "Body010")
body11.BaseFeature = body10
boolean = body.newObject("PartDesign::Boolean", "Boolean")
boolean.Type = "Cut"
boolean.addObjects([body11])
doc.recompute()

body12 = doc.addObject("PartDesign::Body", "Body011")
body12.BaseFeature = body10
boolean2 = body2.newObject("PartDesign::Boolean", "Boolean001")
boolean2.Type = "Cut"
boolean2.addObjects([body12])
doc.recompute()

body13 = doc.addObject("PartDesign::Body", "Body012")
body13.BaseFeature = body10
boolean3 = body3.newObject("PartDesign::Boolean", "Boolean002")
boolean3.Type = "Cut"
boolean3.addObjects([body13])
doc.recompute()

body14 = doc.addObject("PartDesign::Body", "Body013")
body14.BaseFeature = body10
boolean4 = body4.newObject("PartDesign::Boolean", "Boolean003")
boolean4.Type = "Cut"
boolean4.addObjects([body14])
doc.recompute()

body15 = doc.addObject("PartDesign::Body", "Body014")
body15.BaseFeature = body10
boolean5 = body5.newObject("PartDesign::Boolean", "Boolean004")
boolean5.Type = "Cut"
boolean5.addObjects([body15])
doc.recompute()

body16 = doc.addObject("PartDesign::Body", "Body015")
body16.BaseFeature = body10
boolean6 = body6.newObject("PartDesign::Boolean", "Boolean005")
boolean6.Type = "Cut"
boolean6.addObjects([body16])
doc.recompute()

body17 = doc.addObject("PartDesign::Body", "Body016")
body17.BaseFeature = body10
boolean7 = body7.newObject("PartDesign::Boolean", "Boolean006")
boolean7.Type = "Cut"
boolean7.addObjects([body17])
doc.recompute()

body18 = doc.addObject("PartDesign::Body", "Body017")
body18.BaseFeature = body10
boolean8 = body8.newObject("PartDesign::Boolean", "Boolean007")
boolean8.Type = "Cut"
boolean8.addObjects([body18])
doc.recompute()

boolean9 = body9.newObject("PartDesign::Boolean", "Boolean008")
boolean9.Type = "Cut"
boolean9.addObjects([body10])
body19 = doc.addObject("PartDesign::Body", "Body018")

# Sketch on XY plane
sketch11 = body19.newObject("Sketcher::SketchObject", "Sketch010")
sketch11.AttachmentSupport = (doc.getObject("XY_Plane018"), [""])
sketch11.MapMode = "FlatFace"
sketch11.addGeometry(Part.LineSegment(App.Vector(-10, 50, 0), App.Vector(-10, -10, 0)), False)
sketch11.addGeometry(Part.LineSegment(App.Vector(-10, -10, 0), App.Vector(50, -10, 0)), False)
sketch11.addGeometry(Part.LineSegment(App.Vector(50, -10, 0), App.Vector(50, 50, 0)), False)
sketch11.addGeometry(Part.LineSegment(App.Vector(50, 50, 0), App.Vector(-10, 50, 0)), False)
sketch11.addGeometry(Part.LineSegment(App.Vector(6, -6, 0), App.Vector(-6, -6, 0)), False)
sketch11.addGeometry(Part.LineSegment(App.Vector(-6, -6, 0), App.Vector(-6, 6, 0)), False)
sketch11.addGeometry(Part.LineSegment(App.Vector(-6, 6, 0), App.Vector(6, 6, 0)), False)
sketch11.addGeometry(Part.LineSegment(App.Vector(6, 6, 0), App.Vector(6, -6, 0)), False)
sketch11.addGeometry(Part.LineSegment(App.Vector(26, -6, 0), App.Vector(14, -6, 0)), False)
sketch11.addGeometry(Part.LineSegment(App.Vector(14, -6, 0), App.Vector(14, 6, 0)), False)
sketch11.addGeometry(Part.LineSegment(App.Vector(14, 6, 0), App.Vector(26, 6, 0)), False)
sketch11.addGeometry(Part.LineSegment(App.Vector(26, 6, 0), App.Vector(26, -6, 0)), False)
sketch11.addGeometry(Part.LineSegment(App.Vector(46, -6, 0), App.Vector(34, -6, 0)), False)
sketch11.addGeometry(Part.LineSegment(App.Vector(34, -6, 0), App.Vector(34, 6, 0)), False)
sketch11.addGeometry(Part.LineSegment(App.Vector(34, 6, 0), App.Vector(46, 6, 0)), False)
sketch11.addGeometry(Part.LineSegment(App.Vector(46, 6, 0), App.Vector(46, -6, 0)), False)
sketch11.addGeometry(Part.LineSegment(App.Vector(6, 14, 0), App.Vector(-6, 14, 0)), False)
sketch11.addGeometry(Part.LineSegment(App.Vector(-6, 14, 0), App.Vector(-6, 26, 0)), False)
sketch11.addGeometry(Part.LineSegment(App.Vector(-6, 26, 0), App.Vector(6, 26, 0)), False)
sketch11.addGeometry(Part.LineSegment(App.Vector(6, 26, 0), App.Vector(6, 14, 0)), False)
sketch11.addGeometry(Part.LineSegment(App.Vector(6, 34, 0), App.Vector(-6, 34, 0)), False)
sketch11.addGeometry(Part.LineSegment(App.Vector(-6, 34, 0), App.Vector(-6, 46, 0)), False)
sketch11.addGeometry(Part.LineSegment(App.Vector(-6, 46, 0), App.Vector(6, 46, 0)), False)
sketch11.addGeometry(Part.LineSegment(App.Vector(6, 46, 0), App.Vector(6, 34, 0)), False)
sketch11.addGeometry(Part.LineSegment(App.Vector(26, 14, 0), App.Vector(14, 14, 0)), False)
sketch11.addGeometry(Part.LineSegment(App.Vector(14, 14, 0), App.Vector(14, 26, 0)), False)
sketch11.addGeometry(Part.LineSegment(App.Vector(14, 26, 0), App.Vector(26, 26, 0)), False)
sketch11.addGeometry(Part.LineSegment(App.Vector(26, 26, 0), App.Vector(26, 14, 0)), False)
sketch11.addGeometry(Part.LineSegment(App.Vector(46, 14, 0), App.Vector(34, 14, 0)), False)
sketch11.addGeometry(Part.LineSegment(App.Vector(34, 14, 0), App.Vector(34, 26, 0)), False)
sketch11.addGeometry(Part.LineSegment(App.Vector(34, 26, 0), App.Vector(46, 26, 0)), False)
sketch11.addGeometry(Part.LineSegment(App.Vector(46, 26, 0), App.Vector(46, 14, 0)), False)
sketch11.addGeometry(Part.LineSegment(App.Vector(26, 34, 0), App.Vector(14, 34, 0)), False)
sketch11.addGeometry(Part.LineSegment(App.Vector(14, 34, 0), App.Vector(14, 46, 0)), False)
sketch11.addGeometry(Part.LineSegment(App.Vector(14, 46, 0), App.Vector(26, 46, 0)), False)
sketch11.addGeometry(Part.LineSegment(App.Vector(26, 46, 0), App.Vector(26, 34, 0)), False)
sketch11.addGeometry(Part.LineSegment(App.Vector(46, 34, 0), App.Vector(34, 34, 0)), False)
sketch11.addGeometry(Part.LineSegment(App.Vector(34, 34, 0), App.Vector(34, 46, 0)), False)
sketch11.addGeometry(Part.LineSegment(App.Vector(34, 46, 0), App.Vector(46, 46, 0)), False)
sketch11.addGeometry(Part.LineSegment(App.Vector(46, 46, 0), App.Vector(46, 34, 0)), False)
sketch11.addConstraint(Sketcher.Constraint("Coincident", 0, 2, 1, 1))
sketch11.addConstraint(Sketcher.Constraint("Coincident", 1, 2, 2, 1))
sketch11.addConstraint(Sketcher.Constraint("Coincident", 2, 2, 3, 1))
sketch11.addConstraint(Sketcher.Constraint("Coincident", 3, 2, 0, 1))
sketch11.addConstraint(Sketcher.Constraint("Coincident", 4, 2, 5, 1))
sketch11.addConstraint(Sketcher.Constraint("Coincident", 5, 2, 6, 1))
sketch11.addConstraint(Sketcher.Constraint("Coincident", 6, 2, 7, 1))
sketch11.addConstraint(Sketcher.Constraint("Coincident", 7, 2, 4, 1))
sketch11.addConstraint(Sketcher.Constraint("Coincident", 8, 2, 9, 1))
sketch11.addConstraint(Sketcher.Constraint("Coincident", 9, 2, 10, 1))
sketch11.addConstraint(Sketcher.Constraint("Coincident", 10, 2, 11, 1))
sketch11.addConstraint(Sketcher.Constraint("Coincident", 11, 2, 8, 1))
sketch11.addConstraint(Sketcher.Constraint("Coincident", 12, 2, 13, 1))
sketch11.addConstraint(Sketcher.Constraint("Coincident", 13, 2, 14, 1))
sketch11.addConstraint(Sketcher.Constraint("Coincident", 14, 2, 15, 1))
sketch11.addConstraint(Sketcher.Constraint("Coincident", 15, 2, 12, 1))
sketch11.addConstraint(Sketcher.Constraint("Coincident", 16, 2, 17, 1))
sketch11.addConstraint(Sketcher.Constraint("Coincident", 17, 2, 18, 1))
sketch11.addConstraint(Sketcher.Constraint("Coincident", 18, 2, 19, 1))
sketch11.addConstraint(Sketcher.Constraint("Coincident", 19, 2, 16, 1))
sketch11.addConstraint(Sketcher.Constraint("Coincident", 20, 2, 21, 1))
sketch11.addConstraint(Sketcher.Constraint("Coincident", 21, 2, 22, 1))
sketch11.addConstraint(Sketcher.Constraint("Coincident", 22, 2, 23, 1))
sketch11.addConstraint(Sketcher.Constraint("Coincident", 23, 2, 20, 1))
sketch11.addConstraint(Sketcher.Constraint("Coincident", 24, 2, 25, 1))
sketch11.addConstraint(Sketcher.Constraint("Coincident", 25, 2, 26, 1))
sketch11.addConstraint(Sketcher.Constraint("Coincident", 26, 2, 27, 1))
sketch11.addConstraint(Sketcher.Constraint("Coincident", 27, 2, 24, 1))
sketch11.addConstraint(Sketcher.Constraint("Coincident", 28, 2, 29, 1))
sketch11.addConstraint(Sketcher.Constraint("Coincident", 29, 2, 30, 1))
sketch11.addConstraint(Sketcher.Constraint("Coincident", 30, 2, 31, 1))
sketch11.addConstraint(Sketcher.Constraint("Coincident", 31, 2, 28, 1))
sketch11.addConstraint(Sketcher.Constraint("Coincident", 32, 2, 33, 1))
sketch11.addConstraint(Sketcher.Constraint("Coincident", 33, 2, 34, 1))
sketch11.addConstraint(Sketcher.Constraint("Coincident", 34, 2, 35, 1))
sketch11.addConstraint(Sketcher.Constraint("Coincident", 35, 2, 32, 1))
sketch11.addConstraint(Sketcher.Constraint("Coincident", 36, 2, 37, 1))
sketch11.addConstraint(Sketcher.Constraint("Coincident", 37, 2, 38, 1))
sketch11.addConstraint(Sketcher.Constraint("Coincident", 38, 2, 39, 1))
sketch11.addConstraint(Sketcher.Constraint("Coincident", 39, 2, 36, 1))
sketch11.addConstraint(Sketcher.Constraint("Vertical", 0))
sketch11.addConstraint(Sketcher.Constraint("Horizontal", 1))
sketch11.addConstraint(Sketcher.Constraint("Vertical", 2))
sketch11.addConstraint(Sketcher.Constraint("Horizontal", 3))
sketch11.addConstraint(Sketcher.Constraint("Horizontal", 4))
sketch11.addConstraint(Sketcher.Constraint("Vertical", 5))
sketch11.addConstraint(Sketcher.Constraint("Horizontal", 6))
sketch11.addConstraint(Sketcher.Constraint("Vertical", 7))
sketch11.addConstraint(Sketcher.Constraint("Horizontal", 8))
sketch11.addConstraint(Sketcher.Constraint("Vertical", 9))
sketch11.addConstraint(Sketcher.Constraint("Horizontal", 10))
sketch11.addConstraint(Sketcher.Constraint("Vertical", 11))
sketch11.addConstraint(Sketcher.Constraint("Horizontal", 12))
sketch11.addConstraint(Sketcher.Constraint("Vertical", 13))
sketch11.addConstraint(Sketcher.Constraint("Horizontal", 14))
sketch11.addConstraint(Sketcher.Constraint("Vertical", 15))
sketch11.addConstraint(Sketcher.Constraint("Horizontal", 16))
sketch11.addConstraint(Sketcher.Constraint("Vertical", 17))
sketch11.addConstraint(Sketcher.Constraint("Horizontal", 18))
sketch11.addConstraint(Sketcher.Constraint("Vertical", 19))
sketch11.addConstraint(Sketcher.Constraint("Horizontal", 20))
sketch11.addConstraint(Sketcher.Constraint("Vertical", 21))
sketch11.addConstraint(Sketcher.Constraint("Horizontal", 22))
sketch11.addConstraint(Sketcher.Constraint("Vertical", 23))
sketch11.addConstraint(Sketcher.Constraint("Horizontal", 24))
sketch11.addConstraint(Sketcher.Constraint("Vertical", 25))
sketch11.addConstraint(Sketcher.Constraint("Horizontal", 26))
sketch11.addConstraint(Sketcher.Constraint("Vertical", 27))
sketch11.addConstraint(Sketcher.Constraint("Horizontal", 28))
sketch11.addConstraint(Sketcher.Constraint("Vertical", 29))
sketch11.addConstraint(Sketcher.Constraint("Horizontal", 30))
sketch11.addConstraint(Sketcher.Constraint("Vertical", 31))
sketch11.addConstraint(Sketcher.Constraint("Horizontal", 32))
sketch11.addConstraint(Sketcher.Constraint("Vertical", 33))
sketch11.addConstraint(Sketcher.Constraint("Horizontal", 34))
sketch11.addConstraint(Sketcher.Constraint("Vertical", 35))
sketch11.addConstraint(Sketcher.Constraint("Horizontal", 36))
sketch11.addConstraint(Sketcher.Constraint("Vertical", 37))
sketch11.addConstraint(Sketcher.Constraint("Horizontal", 38))
sketch11.addConstraint(Sketcher.Constraint("Vertical", 39))
sketch11.addConstraint(Sketcher.Constraint("Symmetric", 4, 2, 6, 2, -1, 1))
sketch11.addConstraint(Sketcher.Constraint("Horizontal", 7, 2, 8, 2))
sketch11.addConstraint(Sketcher.Constraint("Horizontal", 6, 2, 9, 2))
sketch11.addConstraint(Sketcher.Constraint("Horizontal", 11, 2, 12, 2))
sketch11.addConstraint(Sketcher.Constraint("Horizontal", 10, 2, 13, 2))
sketch11.addConstraint(Sketcher.Constraint("Horizontal", 19, 2, 24, 2))
sketch11.addConstraint(Sketcher.Constraint("Horizontal", 18, 2, 25, 2))
sketch11.addConstraint(Sketcher.Constraint("Horizontal", 27, 2, 28, 2))
sketch11.addConstraint(Sketcher.Constraint("Horizontal", 26, 2, 29, 2))
sketch11.addConstraint(Sketcher.Constraint("Horizontal", 23, 2, 32, 2))
sketch11.addConstraint(Sketcher.Constraint("Horizontal", 22, 2, 33, 2))
sketch11.addConstraint(Sketcher.Constraint("Horizontal", 35, 2, 36, 2))
sketch11.addConstraint(Sketcher.Constraint("Horizontal", 34, 2, 37, 2))
sketch11.addConstraint(Sketcher.Constraint("Vertical", 5, 2, 16, 2))
sketch11.addConstraint(Sketcher.Constraint("Vertical", 7, 2, 18, 2))
sketch11.addConstraint(Sketcher.Constraint("Vertical", 17, 2, 20, 2))
sketch11.addConstraint(Sketcher.Constraint("Vertical", 19, 2, 22, 2))
sketch11.addConstraint(Sketcher.Constraint("Vertical", 9, 2, 24, 2))
sketch11.addConstraint(Sketcher.Constraint("Vertical", 11, 2, 26, 2))
sketch11.addConstraint(Sketcher.Constraint("Vertical", 13, 2, 28, 2))
sketch11.addConstraint(Sketcher.Constraint("Vertical", 15, 2, 30, 2))
sketch11.addConstraint(Sketcher.Constraint("Vertical", 25, 2, 32, 2))
sketch11.addConstraint(Sketcher.Constraint("Vertical", 27, 2, 34, 2))
sketch11.addConstraint(Sketcher.Constraint("Vertical", 29, 2, 36, 2))
sketch11.addConstraint(Sketcher.Constraint("Vertical", 31, 2, 38, 2))
sketch11.addConstraint(Sketcher.Constraint("Equal", 6, 8))
sketch11.addConstraint(Sketcher.Constraint("Equal", 10, 12))
sketch11.addConstraint(Sketcher.Constraint("Equal", 3, 0))
sketch11.addConstraint(Sketcher.Constraint("Equal", 38, 5))
sketch11.addConstraint(Sketcher.Constraint("Equal", 15, 17))
sketch11.addConstraint(Sketcher.Constraint("Equal", 19, 21))
sketch11.addConstraint(Sketcher.Constraint("DistanceX", 1, 1, 1, 2, 60.0))
sketch11.addConstraint(Sketcher.Constraint("DistanceX", 4, 2, 4, 1, 12.0))
sketch11.addConstraint(Sketcher.Constraint("DistanceX", 0, 2, -1, 1, 10.0))
sketch11.addConstraint(Sketcher.Constraint("DistanceY", 0, 2, -1, 1, 10.0))
sketch11.addConstraint(Sketcher.Constraint("DistanceX", -1, 1, 8, 2, 14.0))
sketch11.addConstraint(Sketcher.Constraint("DistanceX", -1, 1, 12, 2, 34.0))
sketch11.addConstraint(Sketcher.Constraint("DistanceY", -1, 1, 16, 2, 14.0))
sketch11.addConstraint(Sketcher.Constraint("DistanceY", -1, 1, 20, 2, 34.0))
sketch11.setExpression("Constraints[111]", "Params.sketch11_width")
sketch11.setExpression("Constraints[112]", "Params.sketch11_width2")
pad11 = body19.newObject("PartDesign::Pad", "Pad010")
pad11.Profile = sketch11
pad11.setExpression("Length", "Params.pad11_length")

# Sketch on XY plane
sketch12 = body19.newObject("Sketcher::SketchObject", "Sketch011")
sketch12.AttachmentSupport = (doc.getObject("XY_Plane018"), [""])
sketch12.MapMode = "FlatFace"
sketch12.addGeometry(Part.LineSegment(App.Vector(50, 50, 0), App.Vector(-10, 50, 0)), False)
sketch12.addGeometry(Part.LineSegment(App.Vector(-10, 50, 0), App.Vector(-10, -10, 0)), False)
sketch12.addGeometry(Part.LineSegment(App.Vector(-10, -10, 0), App.Vector(50, -10, 0)), False)
sketch12.addGeometry(Part.LineSegment(App.Vector(50, -10, 0), App.Vector(50, 50, 0)), False)
sketch12.addConstraint(Sketcher.Constraint("Coincident", 0, 2, 1, 1))
sketch12.addConstraint(Sketcher.Constraint("Coincident", 1, 2, 2, 1))
sketch12.addConstraint(Sketcher.Constraint("Coincident", 2, 2, 3, 1))
sketch12.addConstraint(Sketcher.Constraint("Coincident", 3, 2, 0, 1))
sketch12.addConstraint(Sketcher.Constraint("Horizontal", 0))
sketch12.addConstraint(Sketcher.Constraint("Vertical", 1))
sketch12.addConstraint(Sketcher.Constraint("Horizontal", 2))
sketch12.addConstraint(Sketcher.Constraint("Vertical", 3))
sketch12.addConstraint(Sketcher.Constraint("Equal", 2, 1))
sketch12.addConstraint(Sketcher.Constraint("DistanceX", 0, 2, 0, 1, 60.0))
sketch12.addConstraint(Sketcher.Constraint("DistanceX", 0, 2, -1, 1, 10.0))
sketch12.addConstraint(Sketcher.Constraint("DistanceY", -1, 1, 0, 2, 50.0))
sketch12.setExpression("Constraints[9]", "Params.sketch12_width")
pad12 = body19.newObject("PartDesign::Pad", "Pad011")
pad12.Profile = sketch12
pad12.setExpression("Length", "Params.pad12_length")

doc.recompute()
